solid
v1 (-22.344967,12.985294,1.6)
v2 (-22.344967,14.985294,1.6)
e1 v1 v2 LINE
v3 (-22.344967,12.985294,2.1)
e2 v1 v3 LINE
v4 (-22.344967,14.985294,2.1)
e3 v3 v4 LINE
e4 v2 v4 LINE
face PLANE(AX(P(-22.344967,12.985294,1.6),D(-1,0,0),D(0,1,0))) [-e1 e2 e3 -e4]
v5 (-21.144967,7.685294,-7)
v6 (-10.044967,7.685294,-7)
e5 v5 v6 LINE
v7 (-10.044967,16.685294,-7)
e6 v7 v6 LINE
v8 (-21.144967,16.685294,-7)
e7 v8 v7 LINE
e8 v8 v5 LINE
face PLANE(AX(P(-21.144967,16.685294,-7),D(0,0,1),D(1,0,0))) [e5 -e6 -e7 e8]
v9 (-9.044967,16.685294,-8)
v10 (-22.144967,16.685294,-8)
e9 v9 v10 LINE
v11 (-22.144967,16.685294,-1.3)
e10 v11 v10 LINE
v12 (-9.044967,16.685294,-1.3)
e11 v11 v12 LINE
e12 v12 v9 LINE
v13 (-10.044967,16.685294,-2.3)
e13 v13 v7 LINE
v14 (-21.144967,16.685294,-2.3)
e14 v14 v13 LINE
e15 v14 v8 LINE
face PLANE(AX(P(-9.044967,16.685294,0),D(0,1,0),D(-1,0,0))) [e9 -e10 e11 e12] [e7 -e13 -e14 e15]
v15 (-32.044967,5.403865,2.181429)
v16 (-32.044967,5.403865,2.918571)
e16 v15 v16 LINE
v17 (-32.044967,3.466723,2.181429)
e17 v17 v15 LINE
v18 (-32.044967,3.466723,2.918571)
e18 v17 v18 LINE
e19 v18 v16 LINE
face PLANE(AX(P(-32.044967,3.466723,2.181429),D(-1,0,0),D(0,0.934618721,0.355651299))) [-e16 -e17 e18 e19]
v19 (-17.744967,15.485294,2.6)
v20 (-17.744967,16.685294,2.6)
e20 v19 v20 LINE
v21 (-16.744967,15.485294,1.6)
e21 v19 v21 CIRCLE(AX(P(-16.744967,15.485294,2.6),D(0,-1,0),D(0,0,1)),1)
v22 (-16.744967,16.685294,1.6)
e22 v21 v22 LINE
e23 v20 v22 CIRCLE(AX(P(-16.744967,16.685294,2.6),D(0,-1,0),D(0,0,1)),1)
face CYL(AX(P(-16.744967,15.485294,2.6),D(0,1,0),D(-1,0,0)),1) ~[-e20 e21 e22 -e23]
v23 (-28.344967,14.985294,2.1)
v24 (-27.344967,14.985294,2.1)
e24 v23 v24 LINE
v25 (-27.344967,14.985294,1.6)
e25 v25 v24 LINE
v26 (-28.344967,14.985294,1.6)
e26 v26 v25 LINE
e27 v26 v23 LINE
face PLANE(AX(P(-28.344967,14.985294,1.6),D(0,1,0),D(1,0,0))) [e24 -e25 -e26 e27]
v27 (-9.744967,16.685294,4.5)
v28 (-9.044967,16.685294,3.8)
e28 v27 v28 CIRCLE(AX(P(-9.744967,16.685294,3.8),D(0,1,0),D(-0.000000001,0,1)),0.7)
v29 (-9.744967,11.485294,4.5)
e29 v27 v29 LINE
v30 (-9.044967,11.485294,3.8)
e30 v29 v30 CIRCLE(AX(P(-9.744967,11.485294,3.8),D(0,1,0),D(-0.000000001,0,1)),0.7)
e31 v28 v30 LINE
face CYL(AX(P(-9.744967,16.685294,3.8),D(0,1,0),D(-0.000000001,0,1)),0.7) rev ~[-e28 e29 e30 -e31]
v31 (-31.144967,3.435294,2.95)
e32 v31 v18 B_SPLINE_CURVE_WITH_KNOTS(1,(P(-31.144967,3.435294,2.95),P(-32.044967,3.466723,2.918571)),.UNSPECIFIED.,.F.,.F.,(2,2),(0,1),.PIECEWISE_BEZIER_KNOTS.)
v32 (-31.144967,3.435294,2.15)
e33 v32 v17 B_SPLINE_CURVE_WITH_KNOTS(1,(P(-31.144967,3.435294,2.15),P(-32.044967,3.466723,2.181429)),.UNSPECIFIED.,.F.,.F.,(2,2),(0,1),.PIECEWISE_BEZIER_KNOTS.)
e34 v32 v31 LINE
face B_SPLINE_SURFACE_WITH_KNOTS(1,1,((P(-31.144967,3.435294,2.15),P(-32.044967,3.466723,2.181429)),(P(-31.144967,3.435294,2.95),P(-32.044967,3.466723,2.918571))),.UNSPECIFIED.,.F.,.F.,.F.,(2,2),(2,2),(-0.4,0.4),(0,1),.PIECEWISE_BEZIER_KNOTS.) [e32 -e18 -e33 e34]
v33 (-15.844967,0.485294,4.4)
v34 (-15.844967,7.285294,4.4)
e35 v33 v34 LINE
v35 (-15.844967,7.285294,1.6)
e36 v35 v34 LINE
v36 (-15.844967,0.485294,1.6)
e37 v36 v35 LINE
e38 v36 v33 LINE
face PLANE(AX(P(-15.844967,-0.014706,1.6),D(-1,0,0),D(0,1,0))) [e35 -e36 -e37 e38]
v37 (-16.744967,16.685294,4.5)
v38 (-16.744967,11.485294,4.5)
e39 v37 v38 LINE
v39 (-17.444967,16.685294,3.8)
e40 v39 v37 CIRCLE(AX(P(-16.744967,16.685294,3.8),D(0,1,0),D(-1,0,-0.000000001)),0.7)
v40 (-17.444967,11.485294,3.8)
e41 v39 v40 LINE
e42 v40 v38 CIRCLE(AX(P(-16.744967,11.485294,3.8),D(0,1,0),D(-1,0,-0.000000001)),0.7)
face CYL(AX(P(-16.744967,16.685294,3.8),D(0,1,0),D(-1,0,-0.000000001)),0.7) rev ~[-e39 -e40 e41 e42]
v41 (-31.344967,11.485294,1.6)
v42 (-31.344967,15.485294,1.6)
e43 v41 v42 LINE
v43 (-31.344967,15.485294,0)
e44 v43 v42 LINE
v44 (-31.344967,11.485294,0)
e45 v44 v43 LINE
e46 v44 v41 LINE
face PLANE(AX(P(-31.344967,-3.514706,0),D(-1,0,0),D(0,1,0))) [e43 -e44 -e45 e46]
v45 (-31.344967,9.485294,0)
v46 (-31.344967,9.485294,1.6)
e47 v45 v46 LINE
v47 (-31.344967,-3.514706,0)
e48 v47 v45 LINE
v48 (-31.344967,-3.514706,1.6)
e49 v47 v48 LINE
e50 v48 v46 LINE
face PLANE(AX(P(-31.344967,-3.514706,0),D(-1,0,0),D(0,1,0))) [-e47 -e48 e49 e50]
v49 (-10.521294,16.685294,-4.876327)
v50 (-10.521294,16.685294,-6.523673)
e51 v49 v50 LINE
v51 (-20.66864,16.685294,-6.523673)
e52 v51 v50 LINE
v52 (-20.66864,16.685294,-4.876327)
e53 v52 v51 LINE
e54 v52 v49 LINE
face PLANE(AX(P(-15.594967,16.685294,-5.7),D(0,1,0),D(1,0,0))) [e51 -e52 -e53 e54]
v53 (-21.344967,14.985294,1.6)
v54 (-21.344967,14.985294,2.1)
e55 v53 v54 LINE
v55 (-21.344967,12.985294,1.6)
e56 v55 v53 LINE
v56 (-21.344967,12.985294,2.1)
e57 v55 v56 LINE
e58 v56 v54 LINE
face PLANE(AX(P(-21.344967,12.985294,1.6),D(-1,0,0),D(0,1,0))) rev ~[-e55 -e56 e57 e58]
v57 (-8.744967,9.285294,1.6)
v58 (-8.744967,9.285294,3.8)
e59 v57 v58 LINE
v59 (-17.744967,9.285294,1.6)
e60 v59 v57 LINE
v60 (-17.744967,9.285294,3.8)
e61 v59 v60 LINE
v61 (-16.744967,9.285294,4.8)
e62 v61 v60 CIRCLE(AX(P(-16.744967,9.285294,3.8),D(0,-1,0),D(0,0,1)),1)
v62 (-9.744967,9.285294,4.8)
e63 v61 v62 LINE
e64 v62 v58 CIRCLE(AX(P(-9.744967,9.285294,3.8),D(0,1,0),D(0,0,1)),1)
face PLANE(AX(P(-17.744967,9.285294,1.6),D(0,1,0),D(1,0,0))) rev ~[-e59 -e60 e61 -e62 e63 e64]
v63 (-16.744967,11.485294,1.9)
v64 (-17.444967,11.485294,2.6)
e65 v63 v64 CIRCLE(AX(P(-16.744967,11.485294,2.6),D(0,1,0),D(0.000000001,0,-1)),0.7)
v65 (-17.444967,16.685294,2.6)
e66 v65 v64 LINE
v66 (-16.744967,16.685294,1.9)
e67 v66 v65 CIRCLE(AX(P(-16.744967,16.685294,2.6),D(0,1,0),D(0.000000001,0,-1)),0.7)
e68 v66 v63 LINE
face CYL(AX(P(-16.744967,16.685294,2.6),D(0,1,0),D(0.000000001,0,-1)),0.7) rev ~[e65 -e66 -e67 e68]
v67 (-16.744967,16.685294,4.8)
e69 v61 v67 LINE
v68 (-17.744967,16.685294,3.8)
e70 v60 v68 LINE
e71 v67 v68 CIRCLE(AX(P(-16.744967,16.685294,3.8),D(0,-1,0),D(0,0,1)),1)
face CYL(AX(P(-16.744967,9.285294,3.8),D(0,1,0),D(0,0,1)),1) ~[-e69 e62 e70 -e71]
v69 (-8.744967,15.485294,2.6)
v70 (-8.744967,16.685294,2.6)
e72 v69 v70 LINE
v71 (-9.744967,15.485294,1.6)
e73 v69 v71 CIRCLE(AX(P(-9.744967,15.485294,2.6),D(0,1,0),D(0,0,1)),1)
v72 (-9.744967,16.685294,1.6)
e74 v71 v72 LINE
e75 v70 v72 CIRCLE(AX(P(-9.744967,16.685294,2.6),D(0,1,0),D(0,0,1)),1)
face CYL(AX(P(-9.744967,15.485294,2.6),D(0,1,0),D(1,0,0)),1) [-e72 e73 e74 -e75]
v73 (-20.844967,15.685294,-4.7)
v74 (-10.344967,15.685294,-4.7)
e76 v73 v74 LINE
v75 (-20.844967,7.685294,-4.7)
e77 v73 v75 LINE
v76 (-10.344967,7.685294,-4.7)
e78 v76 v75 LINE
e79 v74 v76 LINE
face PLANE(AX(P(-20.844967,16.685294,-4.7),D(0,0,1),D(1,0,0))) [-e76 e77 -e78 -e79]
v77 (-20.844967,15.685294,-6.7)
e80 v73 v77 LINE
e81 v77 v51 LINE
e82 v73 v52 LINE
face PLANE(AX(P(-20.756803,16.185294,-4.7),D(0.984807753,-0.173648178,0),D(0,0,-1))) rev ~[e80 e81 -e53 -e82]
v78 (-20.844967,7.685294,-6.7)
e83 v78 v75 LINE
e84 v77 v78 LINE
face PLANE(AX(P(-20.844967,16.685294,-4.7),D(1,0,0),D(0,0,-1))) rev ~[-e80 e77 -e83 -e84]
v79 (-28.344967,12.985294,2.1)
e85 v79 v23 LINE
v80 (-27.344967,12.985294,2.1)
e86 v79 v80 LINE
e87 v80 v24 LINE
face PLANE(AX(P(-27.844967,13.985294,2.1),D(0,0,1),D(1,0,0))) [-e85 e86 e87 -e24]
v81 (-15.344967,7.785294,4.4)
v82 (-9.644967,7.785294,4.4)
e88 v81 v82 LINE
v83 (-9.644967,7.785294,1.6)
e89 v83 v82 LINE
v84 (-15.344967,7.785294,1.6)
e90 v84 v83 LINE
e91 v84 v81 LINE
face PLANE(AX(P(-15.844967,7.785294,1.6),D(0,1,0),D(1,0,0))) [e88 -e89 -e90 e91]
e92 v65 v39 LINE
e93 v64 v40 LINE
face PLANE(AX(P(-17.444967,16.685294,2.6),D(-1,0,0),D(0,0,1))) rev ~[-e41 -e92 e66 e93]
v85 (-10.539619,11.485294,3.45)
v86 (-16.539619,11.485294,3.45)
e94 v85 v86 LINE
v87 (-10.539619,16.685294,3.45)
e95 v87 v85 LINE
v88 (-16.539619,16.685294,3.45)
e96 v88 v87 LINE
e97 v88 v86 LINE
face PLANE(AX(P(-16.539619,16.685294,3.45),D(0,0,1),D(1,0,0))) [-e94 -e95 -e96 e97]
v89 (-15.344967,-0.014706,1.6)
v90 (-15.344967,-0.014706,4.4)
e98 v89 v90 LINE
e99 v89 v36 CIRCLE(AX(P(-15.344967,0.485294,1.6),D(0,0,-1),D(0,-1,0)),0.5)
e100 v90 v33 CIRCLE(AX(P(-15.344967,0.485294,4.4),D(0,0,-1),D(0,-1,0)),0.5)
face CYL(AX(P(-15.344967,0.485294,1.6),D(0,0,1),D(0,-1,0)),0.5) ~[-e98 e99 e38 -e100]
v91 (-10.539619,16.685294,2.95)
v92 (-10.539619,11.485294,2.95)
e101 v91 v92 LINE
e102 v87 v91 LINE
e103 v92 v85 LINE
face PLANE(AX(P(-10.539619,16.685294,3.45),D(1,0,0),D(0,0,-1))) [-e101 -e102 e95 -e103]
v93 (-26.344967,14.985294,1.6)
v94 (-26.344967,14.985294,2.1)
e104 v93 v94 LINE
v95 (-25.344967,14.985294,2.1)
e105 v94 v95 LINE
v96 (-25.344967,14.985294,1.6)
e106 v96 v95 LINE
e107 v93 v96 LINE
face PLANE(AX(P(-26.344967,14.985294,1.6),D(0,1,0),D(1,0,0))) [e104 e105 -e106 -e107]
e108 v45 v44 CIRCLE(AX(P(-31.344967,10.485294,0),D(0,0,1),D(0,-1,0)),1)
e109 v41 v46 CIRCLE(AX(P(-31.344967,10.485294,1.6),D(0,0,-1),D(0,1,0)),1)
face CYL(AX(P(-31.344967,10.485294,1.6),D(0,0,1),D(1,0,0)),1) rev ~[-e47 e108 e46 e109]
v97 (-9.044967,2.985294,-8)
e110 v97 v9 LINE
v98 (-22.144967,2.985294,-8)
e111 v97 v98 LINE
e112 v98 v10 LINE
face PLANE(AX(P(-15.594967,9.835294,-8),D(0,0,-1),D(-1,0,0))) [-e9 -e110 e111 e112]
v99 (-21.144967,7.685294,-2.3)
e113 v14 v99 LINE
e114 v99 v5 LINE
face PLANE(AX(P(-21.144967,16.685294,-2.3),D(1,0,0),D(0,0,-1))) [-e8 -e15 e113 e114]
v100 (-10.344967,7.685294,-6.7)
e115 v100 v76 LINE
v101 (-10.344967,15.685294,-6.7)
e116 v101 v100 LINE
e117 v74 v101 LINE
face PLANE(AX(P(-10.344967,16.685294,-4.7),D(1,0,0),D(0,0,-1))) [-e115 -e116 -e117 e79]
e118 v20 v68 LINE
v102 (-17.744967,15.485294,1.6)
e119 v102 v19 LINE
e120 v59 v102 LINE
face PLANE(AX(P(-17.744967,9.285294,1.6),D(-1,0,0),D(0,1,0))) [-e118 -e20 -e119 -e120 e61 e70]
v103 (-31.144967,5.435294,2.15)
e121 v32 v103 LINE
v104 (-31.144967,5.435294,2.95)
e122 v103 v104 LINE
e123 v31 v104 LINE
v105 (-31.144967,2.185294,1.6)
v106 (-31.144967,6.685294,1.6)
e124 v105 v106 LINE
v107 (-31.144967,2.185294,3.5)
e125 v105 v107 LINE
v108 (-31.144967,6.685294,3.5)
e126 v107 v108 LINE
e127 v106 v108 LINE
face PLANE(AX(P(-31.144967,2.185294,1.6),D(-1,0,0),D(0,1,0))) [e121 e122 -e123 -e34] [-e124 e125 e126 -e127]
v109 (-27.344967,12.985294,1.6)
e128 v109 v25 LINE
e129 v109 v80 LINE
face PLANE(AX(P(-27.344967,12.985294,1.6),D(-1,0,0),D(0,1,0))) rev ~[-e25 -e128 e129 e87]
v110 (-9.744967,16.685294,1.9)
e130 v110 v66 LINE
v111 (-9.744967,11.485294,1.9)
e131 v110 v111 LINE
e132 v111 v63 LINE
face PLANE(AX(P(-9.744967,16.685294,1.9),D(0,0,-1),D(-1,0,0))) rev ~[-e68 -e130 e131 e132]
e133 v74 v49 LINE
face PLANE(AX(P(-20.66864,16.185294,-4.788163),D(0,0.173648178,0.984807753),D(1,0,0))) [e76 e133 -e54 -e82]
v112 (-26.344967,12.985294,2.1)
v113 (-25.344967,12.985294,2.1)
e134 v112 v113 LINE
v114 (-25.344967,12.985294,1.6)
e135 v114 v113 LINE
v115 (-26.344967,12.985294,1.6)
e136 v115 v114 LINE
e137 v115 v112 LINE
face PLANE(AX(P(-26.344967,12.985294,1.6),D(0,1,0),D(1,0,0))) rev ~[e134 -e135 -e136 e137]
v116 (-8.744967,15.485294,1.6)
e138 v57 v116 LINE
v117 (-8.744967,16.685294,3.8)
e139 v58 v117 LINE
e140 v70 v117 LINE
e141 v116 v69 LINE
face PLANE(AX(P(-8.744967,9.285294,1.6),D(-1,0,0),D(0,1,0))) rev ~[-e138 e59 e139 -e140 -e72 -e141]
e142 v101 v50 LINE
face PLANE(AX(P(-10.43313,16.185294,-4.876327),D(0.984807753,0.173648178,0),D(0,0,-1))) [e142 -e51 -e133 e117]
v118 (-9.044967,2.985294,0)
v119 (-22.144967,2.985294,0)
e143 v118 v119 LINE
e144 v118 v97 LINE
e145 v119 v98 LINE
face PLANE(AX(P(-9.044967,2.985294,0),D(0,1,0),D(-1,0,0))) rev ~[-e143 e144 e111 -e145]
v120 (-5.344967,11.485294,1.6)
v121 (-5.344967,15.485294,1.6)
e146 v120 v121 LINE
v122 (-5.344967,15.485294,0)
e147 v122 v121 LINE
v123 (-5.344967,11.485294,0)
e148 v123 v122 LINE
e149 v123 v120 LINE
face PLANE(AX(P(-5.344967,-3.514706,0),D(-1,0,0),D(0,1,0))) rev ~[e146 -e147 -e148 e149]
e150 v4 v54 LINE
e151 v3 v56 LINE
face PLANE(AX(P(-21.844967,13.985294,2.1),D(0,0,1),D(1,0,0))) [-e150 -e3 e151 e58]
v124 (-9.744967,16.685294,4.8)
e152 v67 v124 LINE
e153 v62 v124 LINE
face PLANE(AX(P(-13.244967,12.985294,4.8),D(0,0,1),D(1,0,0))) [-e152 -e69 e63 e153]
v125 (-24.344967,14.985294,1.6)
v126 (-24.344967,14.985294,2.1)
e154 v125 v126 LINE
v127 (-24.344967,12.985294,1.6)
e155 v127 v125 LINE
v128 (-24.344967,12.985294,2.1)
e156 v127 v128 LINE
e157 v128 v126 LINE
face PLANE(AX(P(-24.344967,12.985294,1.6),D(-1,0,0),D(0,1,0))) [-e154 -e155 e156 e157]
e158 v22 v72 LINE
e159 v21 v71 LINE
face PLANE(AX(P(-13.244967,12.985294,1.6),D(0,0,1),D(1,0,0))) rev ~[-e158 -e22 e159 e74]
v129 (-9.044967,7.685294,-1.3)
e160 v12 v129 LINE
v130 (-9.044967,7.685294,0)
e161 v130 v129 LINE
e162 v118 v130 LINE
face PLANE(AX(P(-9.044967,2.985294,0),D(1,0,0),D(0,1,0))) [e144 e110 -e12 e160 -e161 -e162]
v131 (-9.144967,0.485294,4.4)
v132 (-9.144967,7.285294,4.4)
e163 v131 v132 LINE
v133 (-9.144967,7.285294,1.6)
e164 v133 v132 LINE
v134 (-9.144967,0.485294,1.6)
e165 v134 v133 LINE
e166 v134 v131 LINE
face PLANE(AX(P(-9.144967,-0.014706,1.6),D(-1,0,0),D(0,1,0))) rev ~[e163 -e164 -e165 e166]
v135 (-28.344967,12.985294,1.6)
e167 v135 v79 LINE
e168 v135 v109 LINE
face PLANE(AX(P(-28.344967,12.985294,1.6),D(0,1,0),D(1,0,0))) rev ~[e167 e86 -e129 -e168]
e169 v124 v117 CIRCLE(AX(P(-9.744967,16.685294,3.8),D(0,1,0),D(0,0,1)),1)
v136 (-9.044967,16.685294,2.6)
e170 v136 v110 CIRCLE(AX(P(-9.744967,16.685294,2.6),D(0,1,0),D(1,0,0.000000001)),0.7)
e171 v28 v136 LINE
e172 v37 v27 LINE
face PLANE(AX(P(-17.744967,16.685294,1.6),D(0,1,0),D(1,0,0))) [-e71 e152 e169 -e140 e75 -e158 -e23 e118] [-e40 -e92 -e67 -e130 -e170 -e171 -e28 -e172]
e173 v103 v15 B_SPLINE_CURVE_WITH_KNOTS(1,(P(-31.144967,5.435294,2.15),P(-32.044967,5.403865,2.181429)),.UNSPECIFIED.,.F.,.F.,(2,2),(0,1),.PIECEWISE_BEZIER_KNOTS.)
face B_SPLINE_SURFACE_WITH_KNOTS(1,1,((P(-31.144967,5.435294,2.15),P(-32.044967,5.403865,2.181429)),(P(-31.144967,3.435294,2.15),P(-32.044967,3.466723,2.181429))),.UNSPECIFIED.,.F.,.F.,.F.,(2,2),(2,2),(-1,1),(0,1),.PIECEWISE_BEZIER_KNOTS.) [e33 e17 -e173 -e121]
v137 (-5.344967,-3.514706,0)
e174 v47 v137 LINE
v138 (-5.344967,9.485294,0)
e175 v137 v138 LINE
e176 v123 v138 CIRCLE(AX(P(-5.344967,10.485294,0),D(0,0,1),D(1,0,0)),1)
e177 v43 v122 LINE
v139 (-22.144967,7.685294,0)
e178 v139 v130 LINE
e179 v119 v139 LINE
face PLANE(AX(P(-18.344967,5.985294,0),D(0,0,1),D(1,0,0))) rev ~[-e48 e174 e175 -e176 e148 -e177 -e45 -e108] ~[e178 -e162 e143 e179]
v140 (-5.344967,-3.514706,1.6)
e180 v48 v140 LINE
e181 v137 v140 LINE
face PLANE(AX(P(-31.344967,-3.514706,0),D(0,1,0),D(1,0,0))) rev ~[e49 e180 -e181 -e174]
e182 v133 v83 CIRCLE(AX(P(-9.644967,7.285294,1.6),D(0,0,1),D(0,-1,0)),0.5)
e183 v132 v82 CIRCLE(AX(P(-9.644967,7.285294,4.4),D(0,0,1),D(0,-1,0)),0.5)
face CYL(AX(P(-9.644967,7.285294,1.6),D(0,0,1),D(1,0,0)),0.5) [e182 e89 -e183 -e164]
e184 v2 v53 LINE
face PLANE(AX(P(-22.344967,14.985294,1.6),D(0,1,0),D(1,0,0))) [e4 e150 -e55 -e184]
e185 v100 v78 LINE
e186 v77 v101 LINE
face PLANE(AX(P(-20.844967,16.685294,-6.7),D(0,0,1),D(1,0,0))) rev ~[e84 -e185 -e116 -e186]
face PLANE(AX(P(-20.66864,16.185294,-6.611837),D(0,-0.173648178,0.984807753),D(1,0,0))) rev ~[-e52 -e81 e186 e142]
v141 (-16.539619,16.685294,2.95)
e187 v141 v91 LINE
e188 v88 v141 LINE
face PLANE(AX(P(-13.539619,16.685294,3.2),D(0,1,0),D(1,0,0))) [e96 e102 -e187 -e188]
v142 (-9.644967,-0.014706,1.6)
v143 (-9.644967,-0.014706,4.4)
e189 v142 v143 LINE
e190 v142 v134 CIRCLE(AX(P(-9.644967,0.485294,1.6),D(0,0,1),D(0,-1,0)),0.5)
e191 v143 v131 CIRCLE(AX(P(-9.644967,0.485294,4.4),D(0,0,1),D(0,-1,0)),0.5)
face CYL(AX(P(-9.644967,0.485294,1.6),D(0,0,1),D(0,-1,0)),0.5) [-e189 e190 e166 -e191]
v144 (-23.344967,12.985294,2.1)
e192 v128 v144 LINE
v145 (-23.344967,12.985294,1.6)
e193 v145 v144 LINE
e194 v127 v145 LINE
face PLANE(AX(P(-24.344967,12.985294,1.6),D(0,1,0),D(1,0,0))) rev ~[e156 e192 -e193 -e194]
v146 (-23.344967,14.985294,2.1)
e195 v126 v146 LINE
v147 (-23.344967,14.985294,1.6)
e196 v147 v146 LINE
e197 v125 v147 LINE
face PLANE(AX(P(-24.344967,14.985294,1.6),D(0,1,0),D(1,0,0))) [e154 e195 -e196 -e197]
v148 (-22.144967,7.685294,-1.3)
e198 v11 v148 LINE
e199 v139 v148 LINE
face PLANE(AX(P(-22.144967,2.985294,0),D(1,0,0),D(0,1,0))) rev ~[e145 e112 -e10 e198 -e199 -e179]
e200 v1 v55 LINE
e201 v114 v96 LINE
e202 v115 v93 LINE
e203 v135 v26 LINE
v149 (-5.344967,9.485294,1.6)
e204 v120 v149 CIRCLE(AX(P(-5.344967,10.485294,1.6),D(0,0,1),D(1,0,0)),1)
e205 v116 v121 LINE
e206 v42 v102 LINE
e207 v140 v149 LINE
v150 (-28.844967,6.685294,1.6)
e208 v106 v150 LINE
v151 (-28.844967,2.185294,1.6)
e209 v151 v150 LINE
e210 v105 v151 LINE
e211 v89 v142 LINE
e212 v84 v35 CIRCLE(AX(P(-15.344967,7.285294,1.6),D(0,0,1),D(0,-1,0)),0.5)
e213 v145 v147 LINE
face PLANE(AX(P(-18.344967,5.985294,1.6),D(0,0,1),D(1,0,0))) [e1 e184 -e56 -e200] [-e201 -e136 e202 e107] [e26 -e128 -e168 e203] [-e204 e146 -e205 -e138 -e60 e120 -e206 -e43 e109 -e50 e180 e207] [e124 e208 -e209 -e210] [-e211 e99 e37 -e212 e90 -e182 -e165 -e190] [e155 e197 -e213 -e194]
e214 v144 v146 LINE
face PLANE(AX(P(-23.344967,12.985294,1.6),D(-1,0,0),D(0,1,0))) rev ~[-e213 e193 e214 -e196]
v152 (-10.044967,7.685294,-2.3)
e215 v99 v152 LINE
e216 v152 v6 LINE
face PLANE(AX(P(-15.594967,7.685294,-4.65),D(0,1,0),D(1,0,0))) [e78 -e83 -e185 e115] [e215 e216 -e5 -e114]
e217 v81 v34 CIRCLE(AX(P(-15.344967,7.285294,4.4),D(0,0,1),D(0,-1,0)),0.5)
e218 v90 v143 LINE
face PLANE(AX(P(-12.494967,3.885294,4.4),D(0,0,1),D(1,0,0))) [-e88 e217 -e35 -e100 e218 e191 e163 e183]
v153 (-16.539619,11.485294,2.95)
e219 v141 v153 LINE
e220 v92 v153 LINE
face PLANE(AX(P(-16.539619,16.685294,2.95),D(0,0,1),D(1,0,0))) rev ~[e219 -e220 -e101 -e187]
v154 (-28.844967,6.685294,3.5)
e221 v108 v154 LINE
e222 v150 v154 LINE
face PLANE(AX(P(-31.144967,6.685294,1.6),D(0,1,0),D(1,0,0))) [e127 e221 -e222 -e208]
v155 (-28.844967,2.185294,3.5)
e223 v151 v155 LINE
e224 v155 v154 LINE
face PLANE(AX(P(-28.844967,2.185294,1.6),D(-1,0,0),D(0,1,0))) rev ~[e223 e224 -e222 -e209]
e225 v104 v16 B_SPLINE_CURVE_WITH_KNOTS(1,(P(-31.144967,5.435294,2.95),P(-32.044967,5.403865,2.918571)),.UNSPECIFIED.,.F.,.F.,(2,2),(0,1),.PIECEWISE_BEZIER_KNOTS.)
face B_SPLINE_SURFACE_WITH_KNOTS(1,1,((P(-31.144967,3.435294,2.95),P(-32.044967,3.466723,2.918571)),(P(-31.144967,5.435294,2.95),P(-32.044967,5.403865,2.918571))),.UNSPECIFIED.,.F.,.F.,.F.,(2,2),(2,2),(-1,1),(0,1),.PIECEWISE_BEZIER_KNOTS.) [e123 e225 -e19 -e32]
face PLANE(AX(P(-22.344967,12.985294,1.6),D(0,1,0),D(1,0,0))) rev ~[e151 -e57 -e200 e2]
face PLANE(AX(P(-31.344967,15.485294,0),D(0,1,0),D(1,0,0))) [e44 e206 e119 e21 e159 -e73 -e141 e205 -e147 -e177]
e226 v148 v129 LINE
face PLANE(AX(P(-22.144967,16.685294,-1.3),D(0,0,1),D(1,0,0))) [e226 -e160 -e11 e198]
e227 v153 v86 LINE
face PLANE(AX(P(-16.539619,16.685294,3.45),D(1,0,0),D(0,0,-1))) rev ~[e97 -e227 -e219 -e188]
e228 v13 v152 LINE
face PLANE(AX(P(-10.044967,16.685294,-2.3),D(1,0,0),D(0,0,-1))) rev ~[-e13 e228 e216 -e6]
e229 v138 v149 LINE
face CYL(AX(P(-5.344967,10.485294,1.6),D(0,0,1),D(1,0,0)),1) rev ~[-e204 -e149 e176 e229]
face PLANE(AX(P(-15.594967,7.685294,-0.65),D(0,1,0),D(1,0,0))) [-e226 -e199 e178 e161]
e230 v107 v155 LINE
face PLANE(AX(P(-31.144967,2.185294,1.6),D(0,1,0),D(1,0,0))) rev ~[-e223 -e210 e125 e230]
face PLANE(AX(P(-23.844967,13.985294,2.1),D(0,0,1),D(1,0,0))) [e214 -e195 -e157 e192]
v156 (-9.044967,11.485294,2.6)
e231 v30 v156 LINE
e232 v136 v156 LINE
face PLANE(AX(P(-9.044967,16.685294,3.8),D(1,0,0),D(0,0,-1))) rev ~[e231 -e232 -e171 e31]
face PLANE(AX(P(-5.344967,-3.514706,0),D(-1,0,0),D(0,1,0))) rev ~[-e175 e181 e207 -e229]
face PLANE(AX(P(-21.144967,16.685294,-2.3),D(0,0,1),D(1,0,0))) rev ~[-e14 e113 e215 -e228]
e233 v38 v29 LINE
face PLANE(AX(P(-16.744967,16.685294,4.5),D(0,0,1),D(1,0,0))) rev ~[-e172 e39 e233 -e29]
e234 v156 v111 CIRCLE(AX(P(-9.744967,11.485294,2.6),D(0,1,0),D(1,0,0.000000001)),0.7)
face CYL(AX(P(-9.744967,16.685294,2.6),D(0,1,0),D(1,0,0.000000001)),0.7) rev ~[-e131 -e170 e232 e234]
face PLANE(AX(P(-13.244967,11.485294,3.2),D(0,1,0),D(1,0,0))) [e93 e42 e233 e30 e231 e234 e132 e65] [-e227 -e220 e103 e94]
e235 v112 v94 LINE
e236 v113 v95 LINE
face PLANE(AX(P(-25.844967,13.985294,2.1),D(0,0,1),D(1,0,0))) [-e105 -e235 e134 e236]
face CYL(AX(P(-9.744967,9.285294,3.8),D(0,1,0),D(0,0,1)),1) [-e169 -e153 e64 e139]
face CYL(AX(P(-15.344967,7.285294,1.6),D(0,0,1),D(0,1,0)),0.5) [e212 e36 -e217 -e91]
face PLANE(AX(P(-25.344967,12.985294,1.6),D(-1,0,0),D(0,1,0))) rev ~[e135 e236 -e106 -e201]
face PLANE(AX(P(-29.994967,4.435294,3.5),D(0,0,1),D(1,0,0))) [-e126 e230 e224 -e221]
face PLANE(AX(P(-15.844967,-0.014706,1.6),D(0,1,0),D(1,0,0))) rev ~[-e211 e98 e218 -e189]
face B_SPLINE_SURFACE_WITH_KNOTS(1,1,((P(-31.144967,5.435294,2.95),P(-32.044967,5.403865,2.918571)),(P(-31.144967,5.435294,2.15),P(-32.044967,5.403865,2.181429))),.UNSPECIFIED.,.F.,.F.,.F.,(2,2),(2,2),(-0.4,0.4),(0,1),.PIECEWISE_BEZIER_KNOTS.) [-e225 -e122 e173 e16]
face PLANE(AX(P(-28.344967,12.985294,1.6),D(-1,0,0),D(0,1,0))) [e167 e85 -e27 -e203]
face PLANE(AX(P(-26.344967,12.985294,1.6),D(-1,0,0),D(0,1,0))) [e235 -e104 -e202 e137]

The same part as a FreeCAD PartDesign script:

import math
import FreeCAD as App
import Part
import Sketcher

V = App.Vector
Q = App.Units.Quantity


def edges_at(feature, points):
    """Names of the edges that pass closest to the given points."""
    edges = feature.Shape.Edges
    near = lambda p: min(range(len(edges)), key=lambda i: edges[i].distToShape(Part.Vertex(*p))[0])
    return sorted({f"Edge{near(p) + 1}" for p in points})

doc = App.newDocument("Part")
body = doc.addObject("PartDesign::Body", "Body")

sketch1 = body.newObject("Sketcher::SketchObject", "Sketch")
sketch1.AttachmentSupport = (doc.getObject("XY_Plane"), [""])
sketch1.MapMode = "FlatFace"
sketch1.addGeometry(Part.LineSegment(V(-31, 15, 0), V(-31, -4, 0)), False)
sketch1.addGeometry(Part.LineSegment(V(-31, -4, 0), V(-5, -4, 0)), False)
sketch1.addGeometry(Part.LineSegment(V(-5, -4, 0), V(-5, 15, 0)), False)
sketch1.addGeometry(Part.LineSegment(V(-5, 15, 0), V(-31, 15, 0)), False)
sketch1.addConstraint(Sketcher.Constraint("Coincident", 0, 2, 1, 1))
sketch1.addConstraint(Sketcher.Constraint("Coincident", 1, 2, 2, 1))
sketch1.addConstraint(Sketcher.Constraint("Coincident", 2, 2, 3, 1))
sketch1.addConstraint(Sketcher.Constraint("Coincident", 3, 2, 0, 1))
sketch1.addConstraint(Sketcher.Constraint("Vertical", 0))
sketch1.addConstraint(Sketcher.Constraint("Horizontal", 1))
sketch1.addConstraint(Sketcher.Constraint("Vertical", 2))
sketch1.addConstraint(Sketcher.Constraint("Horizontal", 3))
sketch1.addConstraint(Sketcher.Constraint("DistanceX", 1, 1, 1, 2, Q("26 mm")))
sketch1.addConstraint(Sketcher.Constraint("DistanceY", 0, 2, 0, 1, Q("19 mm")))
sketch1.addConstraint(Sketcher.Constraint("DistanceX", 0, 2, -1, 1, Q("31.344967 mm")))
sketch1.addConstraint(Sketcher.Constraint("DistanceY", 0, 2, -1, 1, Q("3.514706 mm")))
pad1 = body.newObject("PartDesign::Pad", "Pad")
pad1.Profile = sketch1
pad1.Length = 1.6

sketch2 = body.newObject("Sketcher::SketchObject", "Sketch001")
sketch2.AttachmentSupport = (doc.getObject("XY_Plane"), [""])
sketch2.MapMode = "FlatFace"
sketch2.AttachmentOffset = App.Placement(V(0, 0, 1.6), App.Rotation())
sketch2.addGeometry(Part.LineSegment(V(-28.3, 15, 0), V(-28.3, 13, 0)), False)
sketch2.addGeometry(Part.LineSegment(V(-28.3, 13, 0), V(-27.3, 13, 0)), False)
sketch2.addGeometry(Part.LineSegment(V(-27.3, 13, 0), V(-27.3, 15, 0)), False)
sketch2.addGeometry(Part.LineSegment(V(-27.3, 15, 0), V(-28.3, 15, 0)), False)
sketch2.addGeometry(Part.LineSegment(V(-26.3, 15, 0), V(-26.3, 13, 0)), False)
sketch2.addGeometry(Part.LineSegment(V(-26.3, 13, 0), V(-25.3, 13, 0)), False)
sketch2.addGeometry(Part.LineSegment(V(-25.3, 13, 0), V(-25.3, 15, 0)), False)
sketch2.addGeometry(Part.LineSegment(V(-25.3, 15, 0), V(-26.3, 15, 0)), False)
sketch2.addGeometry(Part.LineSegment(V(-24.3, 15, 0), V(-24.3, 13, 0)), False)
sketch2.addGeometry(Part.LineSegment(V(-24.3, 13, 0), V(-23.3, 13, 0)), False)
sketch2.addGeometry(Part.LineSegment(V(-23.3, 13, 0), V(-23.3, 15, 0)), False)
sketch2.addGeometry(Part.LineSegment(V(-23.3, 15, 0), V(-24.3, 15, 0)), False)
sketch2.addGeometry(Part.LineSegment(V(-22.3, 15, 0), V(-22.3, 13, 0)), False)
sketch2.addGeometry(Part.LineSegment(V(-22.3, 13, 0), V(-21.3, 13, 0)), False)
sketch2.addGeometry(Part.LineSegment(V(-21.3, 13, 0), V(-21.3, 15, 0)), False)
sketch2.addGeometry(Part.LineSegment(V(-21.3, 15, 0), V(-22.3, 15, 0)), False)
sketch2.addConstraint(Sketcher.Constraint("Coincident", 0, 2, 1, 1))
sketch2.addConstraint(Sketcher.Constraint("Coincident", 1, 2, 2, 1))
sketch2.addConstraint(Sketcher.Constraint("Coincident", 2, 2, 3, 1))
sketch2.addConstraint(Sketcher.Constraint("Coincident", 3, 2, 0, 1))
sketch2.addConstraint(Sketcher.Constraint("Coincident", 4, 2, 5, 1))
sketch2.addConstraint(Sketcher.Constraint("Coincident", 5, 2, 6, 1))
sketch2.addConstraint(Sketcher.Constraint("Coincident", 6, 2, 7, 1))
sketch2.addConstraint(Sketcher.Constraint("Coincident", 7, 2, 4, 1))
sketch2.addConstraint(Sketcher.Constraint("Coincident", 8, 2, 9, 1))
sketch2.addConstraint(Sketcher.Constraint("Coincident", 9, 2, 10, 1))
sketch2.addConstraint(Sketcher.Constraint("Coincident", 10, 2, 11, 1))
sketch2.addConstraint(Sketcher.Constraint("Coincident", 11, 2, 8, 1))
sketch2.addConstraint(Sketcher.Constraint("Coincident", 12, 2, 13, 1))
sketch2.addConstraint(Sketcher.Constraint("Coincident", 13, 2, 14, 1))
sketch2.addConstraint(Sketcher.Constraint("Coincident", 14, 2, 15, 1))
sketch2.addConstraint(Sketcher.Constraint("Coincident", 15, 2, 12, 1))
sketch2.addConstraint(Sketcher.Constraint("Vertical", 0))
sketch2.addConstraint(Sketcher.Constraint("Horizontal", 1))
sketch2.addConstraint(Sketcher.Constraint("Vertical", 2))
sketch2.addConstraint(Sketcher.Constraint("Horizontal", 3))
sketch2.addConstraint(Sketcher.Constraint("Vertical", 4))
sketch2.addConstraint(Sketcher.Constraint("Horizontal", 5))
sketch2.addConstraint(Sketcher.Constraint("Vertical", 6))
sketch2.addConstraint(Sketcher.Constraint("Horizontal", 7))
sketch2.addConstraint(Sketcher.Constraint("Vertical", 8))
sketch2.addConstraint(Sketcher.Constraint("Horizontal", 9))
sketch2.addConstraint(Sketcher.Constraint("Vertical", 10))
sketch2.addConstraint(Sketcher.Constraint("Horizontal", 11))
sketch2.addConstraint(Sketcher.Constraint("Vertical", 12))
sketch2.addConstraint(Sketcher.Constraint("Horizontal", 13))
sketch2.addConstraint(Sketcher.Constraint("Vertical", 14))
sketch2.addConstraint(Sketcher.Constraint("Horizontal", 15))
sketch2.addConstraint(Sketcher.Constraint("Horizontal", 1, 2, 4, 2))
sketch2.addConstraint(Sketcher.Constraint("Horizontal", 3, 2, 6, 2))
sketch2.addConstraint(Sketcher.Constraint("Horizontal", 5, 2, 8, 2))
sketch2.addConstraint(Sketcher.Constraint("Horizontal", 7, 2, 10, 2))
sketch2.addConstraint(Sketcher.Constraint("Horizontal", 9, 2, 12, 2))
sketch2.addConstraint(Sketcher.Constraint("Horizontal", 11, 2, 14, 2))
sketch2.addConstraint(Sketcher.Constraint("Equal", 3, 5))
sketch2.addConstraint(Sketcher.Constraint("Equal", 7, 9))
sketch2.addConstraint(Sketcher.Constraint("Equal", 11, 13))
sketch2.addConstraint(Sketcher.Constraint("DistanceX", 1, 1, 1, 2, Q("1 mm")))
sketch2.addConstraint(Sketcher.Constraint("DistanceY", 0, 2, 0, 1, Q("2 mm")))
sketch2.addConstraint(Sketcher.Constraint("DistanceX", 1, 2, 4, 2, Q("1 mm")))
sketch2.addConstraint(Sketcher.Constraint("DistanceX", 5, 2, 8, 2, Q("1 mm")))
sketch2.addConstraint(Sketcher.Constraint("DistanceX", 9, 2, 12, 2, Q("1 mm")))
sketch2.addConstraint(Sketcher.Constraint("DistanceX", 0, 2, -1, 1, Q("28.344967 mm")))
sketch2.addConstraint(Sketcher.Constraint("DistanceY", -1, 1, 0, 2, Q("12.985294 mm")))
pad2 = body.newObject("PartDesign::Pad", "Pad001")
pad2.Profile = sketch2
pad2.Length = 0.5

sketch3 = body.newObject("Sketcher::SketchObject", "Sketch002")
sketch3.AttachmentSupport = (doc.getObject("XY_Plane"), [""])
sketch3.MapMode = "FlatFace"
sketch3.AttachmentOffset = App.Placement(V(0, 0, 1.6), App.Rotation())
sketch3.addGeometry(Part.LineSegment(V(-18, 17, 0), V(-18, 9, 0)), False)
sketch3.addGeometry(Part.LineSegment(V(-18, 9, 0), V(-9, 9, 0)), False)
sketch3.addGeometry(Part.LineSegment(V(-9, 9, 0), V(-9, 17, 0)), False)
sketch3.addGeometry(Part.LineSegment(V(-9, 17, 0), V(-18, 17, 0)), False)
sketch3.addConstraint(Sketcher.Constraint("Coincident", 0, 2, 1, 1))
sketch3.addConstraint(Sketcher.Constraint("Coincident", 1, 2, 2, 1))
sketch3.addConstraint(Sketcher.Constraint("Coincident", 2, 2, 3, 1))
sketch3.addConstraint(Sketcher.Constraint("Coincident", 3, 2, 0, 1))
sketch3.addConstraint(Sketcher.Constraint("Vertical", 0))
sketch3.addConstraint(Sketcher.Constraint("Horizontal", 1))
sketch3.addConstraint(Sketcher.Constraint("Vertical", 2))
sketch3.addConstraint(Sketcher.Constraint("Horizontal", 3))
sketch3.addConstraint(Sketcher.Constraint("DistanceX", 1, 1, 1, 2, Q("9 mm")))
sketch3.addConstraint(Sketcher.Constraint("DistanceY", 0, 2, 0, 1, Q("7.4 mm")))
sketch3.addConstraint(Sketcher.Constraint("DistanceX", 0, 2, -1, 1, Q("17.744967 mm")))
sketch3.addConstraint(Sketcher.Constraint("DistanceY", -1, 1, 0, 2, Q("9.285294 mm")))
pad3 = body.newObject("PartDesign::Pad", "Pad002")
pad3.Profile = sketch3
pad3.Length = 3.2
doc.recompute()

fillet = body.newObject("PartDesign::Fillet", "Fillet")
fillet.Base = (pad3, edges_at(pad3, [(-8.745, 12.985, 4.8)]))
fillet.Radius = 1
doc.recompute()

fillet2 = body.newObject("PartDesign::Fillet", "Fillet001")
fillet2.Base = (fillet, edges_at(fillet, [(-17.745, 16.085, 1.6), (-8.745, 16.085, 1.6), (-17.745, 12.985, 4.8)]))
fillet2.Radius = 1

sketch4 = body.newObject("Sketcher::SketchObject", "Sketch003")
sketch4.AttachmentSupport = (doc.getObject("XZ_Plane"), [""])
sketch4.MapMode = "FlatFace"
sketch4.AttachmentOffset = App.Placement(V(0, 0, -16.685294), App.Rotation())
sketch4.addGeometry(Part.LineSegment(V(-9.7, 1.9, 0), V(-16.7, 1.9, 0)), False)
sketch4.addGeometry(Part.ArcOfCircle(Part.Circle(V(-16.7, 2.6, 0), V(0, 0, 1), 0.7), math.radians(180), math.radians(270)), False)
sketch4.addGeometry(Part.LineSegment(V(-17.4, 2.6, 0), V(-17.4, 3.8, 0)), False)
sketch4.addGeometry(Part.ArcOfCircle(Part.Circle(V(-16.7, 3.8, 0), V(0, 0, 1), 0.7), math.radians(90), math.radians(180)), False)
sketch4.addGeometry(Part.LineSegment(V(-16.7, 4.5, 0), V(-9.7, 4.5, 0)), False)
sketch4.addGeometry(Part.ArcOfCircle(Part.Circle(V(-9.7, 3.8, 0), V(0, 0, 1), 0.7), math.radians(0), math.radians(90)), False)
sketch4.addGeometry(Part.LineSegment(V(-9, 3.8, 0), V(-9, 2.6, 0)), False)
sketch4.addGeometry(Part.ArcOfCircle(Part.Circle(V(-9.7, 2.6, 0), V(0, 0, 1), 0.7), math.radians(-90), math.radians(0)), False)
sketch4.addConstraint(Sketcher.Constraint("Tangent", 0, 2, 1, 2))
sketch4.addConstraint(Sketcher.Constraint("Tangent", 1, 1, 2, 1))
sketch4.addConstraint(Sketcher.Constraint("Tangent", 2, 2, 3, 2))
sketch4.addConstraint(Sketcher.Constraint("Tangent", 3, 1, 4, 1))
sketch4.addConstraint(Sketcher.Constraint("Tangent", 4, 2, 5, 2))
sketch4.addConstraint(Sketcher.Constraint("Tangent", 5, 1, 6, 1))
sketch4.addConstraint(Sketcher.Constraint("Tangent", 6, 2, 7, 2))
sketch4.addConstraint(Sketcher.Constraint("Tangent", 7, 1, 0, 1))
sketch4.addConstraint(Sketcher.Constraint("Horizontal", 0))
sketch4.addConstraint(Sketcher.Constraint("Vertical", 2))
sketch4.addConstraint(Sketcher.Constraint("Horizontal", 4))
sketch4.addConstraint(Sketcher.Constraint("Vertical", 6))
sketch4.addConstraint(Sketcher.Constraint("Equal", 1, 3))
sketch4.addConstraint(Sketcher.Constraint("Equal", 3, 5))
sketch4.addConstraint(Sketcher.Constraint("Equal", 5, 7))
sketch4.addConstraint(Sketcher.Constraint("Radius", 1, Q("0.7 mm")))
sketch4.addConstraint(Sketcher.Constraint("DistanceX", 0, 2, 0, 1, Q("7 mm")))
sketch4.addConstraint(Sketcher.Constraint("DistanceY", 2, 1, 2, 2, Q("1.2 mm")))
sketch4.addConstraint(Sketcher.Constraint("DistanceY", -1, 1, 1, 3, Q("2.6 mm")))
sketch4.addConstraint(Sketcher.Constraint("DistanceX", 1, 3, -1, 1, Q("16.744967 mm")))
pocket1 = body.newObject("PartDesign::Pocket", "Pocket")
pocket1.Profile = sketch4
pocket1.Length = 5.2
pocket1.Reversed = True

sketch5 = body.newObject("Sketcher::SketchObject", "Sketch004")
sketch5.AttachmentSupport = (doc.getObject("XZ_Plane"), [""])
sketch5.MapMode = "FlatFace"
sketch5.AttachmentOffset = App.Placement(V(0, 0, -16.685294), App.Rotation())
sketch5.addGeometry(Part.LineSegment(V(-16.5, 3, 0), V(-16.5, 3.5, 0)), False)
sketch5.addGeometry(Part.LineSegment(V(-16.5, 3.5, 0), V(-10.5, 3.5, 0)), False)
sketch5.addGeometry(Part.LineSegment(V(-10.5, 3.5, 0), V(-10.5, 3, 0)), False)
sketch5.addGeometry(Part.LineSegment(V(-10.5, 3, 0), V(-16.5, 3, 0)), False)
sketch5.addConstraint(Sketcher.Constraint("Coincident", 0, 2, 1, 1))
sketch5.addConstraint(Sketcher.Constraint("Coincident", 1, 2, 2, 1))
sketch5.addConstraint(Sketcher.Constraint("Coincident", 2, 2, 3, 1))
sketch5.addConstraint(Sketcher.Constraint("Coincident", 3, 2, 0, 1))
sketch5.addConstraint(Sketcher.Constraint("Vertical", 0))
sketch5.addConstraint(Sketcher.Constraint("Horizontal", 1))
sketch5.addConstraint(Sketcher.Constraint("Vertical", 2))
sketch5.addConstraint(Sketcher.Constraint("Horizontal", 3))
sketch5.addConstraint(Sketcher.Constraint("DistanceX", 1, 1, 1, 2, Q("6 mm")))
sketch5.addConstraint(Sketcher.Constraint("DistanceY", 0, 1, 0, 2, Q("0.5 mm")))
sketch5.addConstraint(Sketcher.Constraint("DistanceY", -1, 1, 0, 2, Q("3.45 mm")))
sketch5.addConstraint(Sketcher.Constraint("DistanceX", 0, 2, -1, 1, Q("16.539619 mm")))
pad4 = body.newObject("PartDesign::Pad", "Pad003")
pad4.Profile = sketch5
pad4.Type = "UpToFirst"

sketch6 = body.newObject("Sketcher::SketchObject", "Sketch005")
sketch6.AttachmentSupport = (doc.getObject("XY_Plane"), [""])
sketch6.MapMode = "FlatFace"
sketch6.AttachmentOffset = App.Placement(V(0, 0, 1.6), App.Rotation())
sketch6.addGeometry(Part.LineSegment(V(-16, 8, 0), V(-16, 0, 0)), False)
sketch6.addGeometry(Part.LineSegment(V(-16, 0, 0), V(-9, 0, 0)), False)
sketch6.addGeometry(Part.LineSegment(V(-9, 0, 0), V(-9, 8, 0)), False)
sketch6.addGeometry(Part.LineSegment(V(-9, 8, 0), V(-16, 8, 0)), False)
sketch6.addConstraint(Sketcher.Constraint("Coincident", 0, 2, 1, 1))
sketch6.addConstraint(Sketcher.Constraint("Coincident", 1, 2, 2, 1))
sketch6.addConstraint(Sketcher.Constraint("Coincident", 2, 2, 3, 1))
sketch6.addConstraint(Sketcher.Constraint("Coincident", 3, 2, 0, 1))
sketch6.addConstraint(Sketcher.Constraint("Vertical", 0))
sketch6.addConstraint(Sketcher.Constraint("Horizontal", 1))
sketch6.addConstraint(Sketcher.Constraint("Vertical", 2))
sketch6.addConstraint(Sketcher.Constraint("Horizontal", 3))
sketch6.addConstraint(Sketcher.Constraint("DistanceX", 1, 1, 1, 2, Q("6.7 mm")))
sketch6.addConstraint(Sketcher.Constraint("DistanceY", 0, 2, 0, 1, Q("7.8 mm")))
sketch6.addConstraint(Sketcher.Constraint("DistanceX", 0, 2, -1, 1, Q("15.844967 mm")))
sketch6.addConstraint(Sketcher.Constraint("DistanceY", 0, 2, -1, 1, Q("0.014706 mm")))
pad5 = body.newObject("PartDesign::Pad", "Pad004")
pad5.Profile = sketch6
pad5.Length = 2.8
doc.recompute()

fillet3 = body.newObject("PartDesign::Fillet", "Fillet002")
fillet3.Base = (pad5, edges_at(pad5, [
    (-15.845, 7.785, 3),
    (-15.845, -0.015, 3),
    (-9.145, -0.015, 3),
    (-9.145, 7.785, 3),
]))
fillet3.Radius = 0.5

sketch7 = body.newObject("Sketcher::SketchObject", "Sketch006")
sketch7.AttachmentSupport = (doc.getObject("XY_Plane"), [""])
sketch7.MapMode = "FlatFace"
sketch7.AttachmentOffset = App.Placement(V(0, 0, 1.6), App.Rotation())
sketch7.addGeometry(Part.LineSegment(V(-31.1, 6.7, 0), V(-31.1, 2.2, 0)), False)
sketch7.addGeometry(Part.LineSegment(V(-31.1, 2.2, 0), V(-28.8, 2.2, 0)), False)
sketch7.addGeometry(Part.LineSegment(V(-28.8, 2.2, 0), V(-28.8, 6.7, 0)), False)
sketch7.addGeometry(Part.LineSegment(V(-28.8, 6.7, 0), V(-31.1, 6.7, 0)), False)
sketch7.addConstraint(Sketcher.Constraint("Coincident", 0, 2, 1, 1))
sketch7.addConstraint(Sketcher.Constraint("Coincident", 1, 2, 2, 1))
sketch7.addConstraint(Sketcher.Constraint("Coincident", 2, 2, 3, 1))
sketch7.addConstraint(Sketcher.Constraint("Coincident", 3, 2, 0, 1))
sketch7.addConstraint(Sketcher.Constraint("Vertical", 0))
sketch7.addConstraint(Sketcher.Constraint("Horizontal", 1))
sketch7.addConstraint(Sketcher.Constraint("Vertical", 2))
sketch7.addConstraint(Sketcher.Constraint("Horizontal", 3))
sketch7.addConstraint(Sketcher.Constraint("DistanceX", 1, 1, 1, 2, Q("2.3 mm")))
sketch7.addConstraint(Sketcher.Constraint("DistanceY", 0, 2, 0, 1, Q("4.5 mm")))
sketch7.addConstraint(Sketcher.Constraint("DistanceX", 0, 2, -1, 1, Q("31.144967 mm")))
sketch7.addConstraint(Sketcher.Constraint("DistanceY", -1, 1, 0, 2, Q("2.185294 mm")))
pad6 = body.newObject("PartDesign::Pad", "Pad005")
pad6.Profile = sketch7
pad6.Length = 1.9

sketch8 = body.newObject("Sketcher::SketchObject", "Sketch007")
sketch8.AttachmentSupport = (doc.getObject("YZ_Plane"), [""])
sketch8.MapMode = "FlatFace"
sketch8.AttachmentOffset = App.Placement(V(0, 0, -31.144967), App.Rotation())
sketch8.addGeometry(Part.LineSegment(V(5.4, 2.1, 0), V(3.4, 2.1, 0)), False)
sketch8.addGeometry(Part.LineSegment(V(3.4, 2.1, 0), V(3.4, 3, 0)), False)
sketch8.addGeometry(Part.LineSegment(V(3.4, 3, 0), V(5.4, 3, 0)), False)
sketch8.addGeometry(Part.LineSegment(V(5.4, 3, 0), V(5.4, 2.1, 0)), False)
sketch8.addConstraint(Sketcher.Constraint("Coincident", 0, 2, 1, 1))
sketch8.addConstraint(Sketcher.Constraint("Coincident", 1, 2, 2, 1))
sketch8.addConstraint(Sketcher.Constraint("Coincident", 2, 2, 3, 1))
sketch8.addConstraint(Sketcher.Constraint("Coincident", 3, 2, 0, 1))
sketch8.addConstraint(Sketcher.Constraint("Horizontal", 0))
sketch8.addConstraint(Sketcher.Constraint("Vertical", 1))
sketch8.addConstraint(Sketcher.Constraint("Horizontal", 2))
sketch8.addConstraint(Sketcher.Constraint("Vertical", 3))
sketch8.addConstraint(Sketcher.Constraint("DistanceX", 0, 2, 0, 1, Q("2 mm")))
sketch8.addConstraint(Sketcher.Constraint("DistanceY", 1, 1, 1, 2, Q("0.8 mm")))
sketch8.addConstraint(Sketcher.Constraint("DistanceY", -1, 1, 0, 2, Q("2.15 mm")))
sketch8.addConstraint(Sketcher.Constraint("DistanceX", -1, 1, 0, 2, Q("3.435294 mm")))
pad7 = body.newObject("PartDesign::Pad", "Pad006")
pad7.Profile = sketch8
pad7.Length = 0.9
pad7.Reversed = True
pad7.TaperAngle = -2

sketch9 = body.newObject("Sketcher::SketchObject", "Sketch008")
sketch9.AttachmentSupport = (doc.getObject("XY_Plane"), [""])
sketch9.MapMode = "FlatFace"
sketch9.addGeometry(Part.LineSegment(V(-9, 17, 0), V(-9, 3, 0)), False)
sketch9.addGeometry(Part.LineSegment(V(-9, 3, 0), V(-22, 3, 0)), False)
sketch9.addGeometry(Part.LineSegment(V(-22, 3, 0), V(-22, 17, 0)), False)
sketch9.addGeometry(Part.LineSegment(V(-22, 17, 0), V(-9, 17, 0)), False)
sketch9.addConstraint(Sketcher.Constraint("Coincident", 0, 2, 1, 1))
sketch9.addConstraint(Sketcher.Constraint("Coincident", 1, 2, 2, 1))
sketch9.addConstraint(Sketcher.Constraint("Coincident", 2, 2, 3, 1))
sketch9.addConstraint(Sketcher.Constraint("Coincident", 3, 2, 0, 1))
sketch9.addConstraint(Sketcher.Constraint("Vertical", 0))
sketch9.addConstraint(Sketcher.Constraint("Horizontal", 1))
sketch9.addConstraint(Sketcher.Constraint("Vertical", 2))
sketch9.addConstraint(Sketcher.Constraint("Horizontal", 3))
sketch9.addConstraint(Sketcher.Constraint("DistanceX", 1, 2, 1, 1, Q("13.1 mm")))
sketch9.addConstraint(Sketcher.Constraint("DistanceY", 0, 2, 0, 1, Q("13.7 mm")))
sketch9.addConstraint(Sketcher.Constraint("DistanceX", 0, 2, -1, 1, Q("9.044967 mm")))
sketch9.addConstraint(Sketcher.Constraint("DistanceY", -1, 1, 0, 2, Q("2.985294 mm")))
pad8 = body.newObject("PartDesign::Pad", "Pad007")
pad8.Profile = sketch9
pad8.Length = 8
pad8.Reversed = True

sketch10 = body.newObject("Sketcher::SketchObject", "Sketch009")
sketch10.AttachmentSupport = (doc.getObject("XZ_Plane"), [""])
sketch10.MapMode = "FlatFace"
sketch10.AttachmentOffset = App.Placement(V(0, 0, -16.685294), App.Rotation())
sketch10.addGeometry(Part.LineSegment(V(-22.1, -1.3, 0), V(-22.1, 0, 0)), False)
sketch10.addGeometry(Part.LineSegment(V(-22.1, 0, 0), V(-9, 0, 0)), False)
sketch10.addGeometry(Part.LineSegment(V(-9, 0, 0), V(-9, -1.3, 0)), False)
sketch10.addGeometry(Part.LineSegment(V(-9, -1.3, 0), V(-22.1, -1.3, 0)), False)
sketch10.addConstraint(Sketcher.Constraint("Coincident", 0, 2, 1, 1))
sketch10.addConstraint(Sketcher.Constraint("Coincident", 1, 2, 2, 1))
sketch10.addConstraint(Sketcher.Constraint("Coincident", 2, 2, 3, 1))
sketch10.addConstraint(Sketcher.Constraint("Coincident", 3, 2, 0, 1))
sketch10.addConstraint(Sketcher.Constraint("Vertical", 0))
sketch10.addConstraint(Sketcher.Constraint("Horizontal", 1))
sketch10.addConstraint(Sketcher.Constraint("Vertical", 2))
sketch10.addConstraint(Sketcher.Constraint("Horizontal", 3))
sketch10.addConstraint(Sketcher.Constraint("PointOnObject", 0, 2, -1))
sketch10.addConstraint(Sketcher.Constraint("DistanceX", 1, 1, 1, 2, Q("13.1 mm")))
sketch10.addConstraint(Sketcher.Constraint("DistanceY", 0, 1, 0, 2, Q("1.3 mm")))
sketch10.addConstraint(Sketcher.Constraint("DistanceX", 0, 2, -1, 1, Q("22.144967 mm")))
pocket2 = body.newObject("PartDesign::Pocket", "Pocket001")
pocket2.Profile = sketch10
pocket2.Length = 9
pocket2.Reversed = True

sketch11 = body.newObject("Sketcher::SketchObject", "Sketch010")
sketch11.AttachmentSupport = (doc.getObject("XZ_Plane"), [""])
sketch11.MapMode = "FlatFace"
sketch11.AttachmentOffset = App.Placement(V(0, 0, -16.685294), App.Rotation())
sketch11.addGeometry(Part.LineSegment(V(-21.1, -7, 0), V(-21.1, -2.3, 0)), False)
sketch11.addGeometry(Part.LineSegment(V(-21.1, -2.3, 0), V(-10, -2.3, 0)), False)
sketch11.addGeometry(Part.LineSegment(V(-10, -2.3, 0), V(-10, -7, 0)), False)
sketch11.addGeometry(Part.LineSegment(V(-10, -7, 0), V(-21.1, -7, 0)), False)
sketch11.addConstraint(Sketcher.Constraint("Coincident", 0, 2, 1, 1))
sketch11.addConstraint(Sketcher.Constraint("Coincident", 1, 2, 2, 1))
sketch11.addConstraint(Sketcher.Constraint("Coincident", 2, 2, 3, 1))
sketch11.addConstraint(Sketcher.Constraint("Coincident", 3, 2, 0, 1))
sketch11.addConstraint(Sketcher.Constraint("Vertical", 0))
sketch11.addConstraint(Sketcher.Constraint("Horizontal", 1))
sketch11.addConstraint(Sketcher.Constraint("Vertical", 2))
sketch11.addConstraint(Sketcher.Constraint("Horizontal", 3))
sketch11.addConstraint(Sketcher.Constraint("DistanceX", 1, 1, 1, 2, Q("11.1 mm")))
sketch11.addConstraint(Sketcher.Constraint("DistanceY", 0, 1, 0, 2, Q("4.7 mm")))
sketch11.addConstraint(Sketcher.Constraint("DistanceY", 2, 2, -1, 1, Q("7 mm")))
sketch11.addConstraint(Sketcher.Constraint("DistanceX", 0, 2, -1, 1, Q("21.144967 mm")))
pocket3 = body.newObject("PartDesign::Pocket", "Pocket002")
pocket3.Profile = sketch11
pocket3.Length = 9
pocket3.Reversed = True

sketch12 = body.newObject("Sketcher::SketchObject", "Sketch011")
sketch12.AttachmentSupport = (doc.getObject("XZ_Plane"), [""])
sketch12.MapMode = "FlatFace"
sketch12.AttachmentOffset = App.Placement(V(0, 0, -16.685294), App.Rotation())
sketch12.addGeometry(Part.LineSegment(V(-20.8, -6.7, 0), V(-20.8, -4.7, 0)), False)
sketch12.addGeometry(Part.LineSegment(V(-20.8, -4.7, 0), V(-10.3, -4.7, 0)), False)
sketch12.addGeometry(Part.LineSegment(V(-10.3, -4.7, 0), V(-10.3, -6.7, 0)), False)
sketch12.addGeometry(Part.LineSegment(V(-10.3, -6.7, 0), V(-20.8, -6.7, 0)), False)
sketch12.addConstraint(Sketcher.Constraint("Coincident", 0, 2, 1, 1))
sketch12.addConstraint(Sketcher.Constraint("Coincident", 1, 2, 2, 1))
sketch12.addConstraint(Sketcher.Constraint("Coincident", 2, 2, 3, 1))
sketch12.addConstraint(Sketcher.Constraint("Coincident", 3, 2, 0, 1))
sketch12.addConstraint(Sketcher.Constraint("Vertical", 0))
sketch12.addConstraint(Sketcher.Constraint("Horizontal", 1))
sketch12.addConstraint(Sketcher.Constraint("Vertical", 2))
sketch12.addConstraint(Sketcher.Constraint("Horizontal", 3))
sketch12.addConstraint(Sketcher.Constraint("DistanceY", 0, 1, 0, 2, Q("2 mm")))
sketch12.addConstraint(Sketcher.Constraint("DistanceX", 1, 1, 1, 2, Q("10.5 mm")))
sketch12.addConstraint(Sketcher.Constraint("DistanceY", 0, 2, -1, 1, Q("4.7 mm")))
sketch12.addConstraint(Sketcher.Constraint("DistanceX", 0, 2, -1, 1, Q("20.844967 mm")))
pad9 = body.newObject("PartDesign::Pad", "Pad008")
pad9.Profile = sketch12
pad9.Type = "UpToFirst"
doc.recompute()

chamfer = body.newObject("PartDesign::Chamfer", "Chamfer")
chamfer.Base = (pad9, edges_at(pad9, [(-20.845, 16.685, -5.7)]))
chamfer.ChamferType = "Two distances"
chamfer.Size = 1
chamfer.Size2 = 0.176327
doc.recompute()

chamfer2 = body.newObject("PartDesign::Chamfer", "Chamfer001")
chamfer2.Base = (chamfer, edges_at(chamfer, [(-15.507, 16.685, -4.7)]))
chamfer2.ChamferType = "Two distances"
chamfer2.Size = 1
chamfer2.Size2 = 0.176327
doc.recompute()

chamfer3 = body.newObject("PartDesign::Chamfer", "Chamfer002")
chamfer3.Base = (chamfer2, edges_at(chamfer2, [(-10.345, 16.685, -5.788)]))
chamfer3.ChamferType = "Two distances"
chamfer3.Size = 1
chamfer3.Size2 = 0.176327
doc.recompute()

chamfer4 = body.newObject("PartDesign::Chamfer", "Chamfer003")
chamfer4.Base = (chamfer3, edges_at(chamfer3, [(-15.595, 16.685, -6.7)]))
chamfer4.ChamferType = "Two distances"
chamfer4.Size = 1
chamfer4.Size2 = 0.176327

sketch13 = body.newObject("Sketcher::SketchObject", "Sketch012")
sketch13.AttachmentSupport = (doc.getObject("XY_Plane"), [""])
sketch13.MapMode = "FlatFace"
sketch13.AttachmentOffset = App.Placement(V(0, 0, 1.6), App.Rotation())
sketch13.addGeometry(Part.Circle(V(-31.3, 10.5, 0), V(0, 0, 1), 1), False)
sketch13.addConstraint(Sketcher.Constraint("Diameter", 0, Q("2 mm")))
sketch13.addConstraint(Sketcher.Constraint("DistanceX", 0, 3, -1, 1, Q("31.344967 mm")))
sketch13.addConstraint(Sketcher.Constraint("DistanceY", -1, 1, 0, 3, Q("10.485294 mm")))
pocket4 = body.newObject("PartDesign::Pocket", "Pocket003")
pocket4.Profile = sketch13
pocket4.Type = "UpToFirst"

sketch14 = body.newObject("Sketcher::SketchObject", "Sketch013")
sketch14.AttachmentSupport = (doc.getObject("XY_Plane"), [""])
sketch14.MapMode = "FlatFace"
sketch14.AttachmentOffset = App.Placement(V(0, 0, 1.6), App.Rotation())
sketch14.addGeometry(Part.Circle(V(-5.3, 10.5, 0), V(0, 0, 1), 1), False)
sketch14.addConstraint(Sketcher.Constraint("Diameter", 0, Q("2 mm")))
sketch14.addConstraint(Sketcher.Constraint("DistanceX", 0, 3, -1, 1, Q("5.344967 mm")))
sketch14.addConstraint(Sketcher.Constraint("DistanceY", -1, 1, 0, 3, Q("10.485294 mm")))
pocket5 = body.newObject("PartDesign::Pocket", "Pocket004")
pocket5.Profile = sketch14
pocket5.Type = "UpToFirst"

doc.recompute()
